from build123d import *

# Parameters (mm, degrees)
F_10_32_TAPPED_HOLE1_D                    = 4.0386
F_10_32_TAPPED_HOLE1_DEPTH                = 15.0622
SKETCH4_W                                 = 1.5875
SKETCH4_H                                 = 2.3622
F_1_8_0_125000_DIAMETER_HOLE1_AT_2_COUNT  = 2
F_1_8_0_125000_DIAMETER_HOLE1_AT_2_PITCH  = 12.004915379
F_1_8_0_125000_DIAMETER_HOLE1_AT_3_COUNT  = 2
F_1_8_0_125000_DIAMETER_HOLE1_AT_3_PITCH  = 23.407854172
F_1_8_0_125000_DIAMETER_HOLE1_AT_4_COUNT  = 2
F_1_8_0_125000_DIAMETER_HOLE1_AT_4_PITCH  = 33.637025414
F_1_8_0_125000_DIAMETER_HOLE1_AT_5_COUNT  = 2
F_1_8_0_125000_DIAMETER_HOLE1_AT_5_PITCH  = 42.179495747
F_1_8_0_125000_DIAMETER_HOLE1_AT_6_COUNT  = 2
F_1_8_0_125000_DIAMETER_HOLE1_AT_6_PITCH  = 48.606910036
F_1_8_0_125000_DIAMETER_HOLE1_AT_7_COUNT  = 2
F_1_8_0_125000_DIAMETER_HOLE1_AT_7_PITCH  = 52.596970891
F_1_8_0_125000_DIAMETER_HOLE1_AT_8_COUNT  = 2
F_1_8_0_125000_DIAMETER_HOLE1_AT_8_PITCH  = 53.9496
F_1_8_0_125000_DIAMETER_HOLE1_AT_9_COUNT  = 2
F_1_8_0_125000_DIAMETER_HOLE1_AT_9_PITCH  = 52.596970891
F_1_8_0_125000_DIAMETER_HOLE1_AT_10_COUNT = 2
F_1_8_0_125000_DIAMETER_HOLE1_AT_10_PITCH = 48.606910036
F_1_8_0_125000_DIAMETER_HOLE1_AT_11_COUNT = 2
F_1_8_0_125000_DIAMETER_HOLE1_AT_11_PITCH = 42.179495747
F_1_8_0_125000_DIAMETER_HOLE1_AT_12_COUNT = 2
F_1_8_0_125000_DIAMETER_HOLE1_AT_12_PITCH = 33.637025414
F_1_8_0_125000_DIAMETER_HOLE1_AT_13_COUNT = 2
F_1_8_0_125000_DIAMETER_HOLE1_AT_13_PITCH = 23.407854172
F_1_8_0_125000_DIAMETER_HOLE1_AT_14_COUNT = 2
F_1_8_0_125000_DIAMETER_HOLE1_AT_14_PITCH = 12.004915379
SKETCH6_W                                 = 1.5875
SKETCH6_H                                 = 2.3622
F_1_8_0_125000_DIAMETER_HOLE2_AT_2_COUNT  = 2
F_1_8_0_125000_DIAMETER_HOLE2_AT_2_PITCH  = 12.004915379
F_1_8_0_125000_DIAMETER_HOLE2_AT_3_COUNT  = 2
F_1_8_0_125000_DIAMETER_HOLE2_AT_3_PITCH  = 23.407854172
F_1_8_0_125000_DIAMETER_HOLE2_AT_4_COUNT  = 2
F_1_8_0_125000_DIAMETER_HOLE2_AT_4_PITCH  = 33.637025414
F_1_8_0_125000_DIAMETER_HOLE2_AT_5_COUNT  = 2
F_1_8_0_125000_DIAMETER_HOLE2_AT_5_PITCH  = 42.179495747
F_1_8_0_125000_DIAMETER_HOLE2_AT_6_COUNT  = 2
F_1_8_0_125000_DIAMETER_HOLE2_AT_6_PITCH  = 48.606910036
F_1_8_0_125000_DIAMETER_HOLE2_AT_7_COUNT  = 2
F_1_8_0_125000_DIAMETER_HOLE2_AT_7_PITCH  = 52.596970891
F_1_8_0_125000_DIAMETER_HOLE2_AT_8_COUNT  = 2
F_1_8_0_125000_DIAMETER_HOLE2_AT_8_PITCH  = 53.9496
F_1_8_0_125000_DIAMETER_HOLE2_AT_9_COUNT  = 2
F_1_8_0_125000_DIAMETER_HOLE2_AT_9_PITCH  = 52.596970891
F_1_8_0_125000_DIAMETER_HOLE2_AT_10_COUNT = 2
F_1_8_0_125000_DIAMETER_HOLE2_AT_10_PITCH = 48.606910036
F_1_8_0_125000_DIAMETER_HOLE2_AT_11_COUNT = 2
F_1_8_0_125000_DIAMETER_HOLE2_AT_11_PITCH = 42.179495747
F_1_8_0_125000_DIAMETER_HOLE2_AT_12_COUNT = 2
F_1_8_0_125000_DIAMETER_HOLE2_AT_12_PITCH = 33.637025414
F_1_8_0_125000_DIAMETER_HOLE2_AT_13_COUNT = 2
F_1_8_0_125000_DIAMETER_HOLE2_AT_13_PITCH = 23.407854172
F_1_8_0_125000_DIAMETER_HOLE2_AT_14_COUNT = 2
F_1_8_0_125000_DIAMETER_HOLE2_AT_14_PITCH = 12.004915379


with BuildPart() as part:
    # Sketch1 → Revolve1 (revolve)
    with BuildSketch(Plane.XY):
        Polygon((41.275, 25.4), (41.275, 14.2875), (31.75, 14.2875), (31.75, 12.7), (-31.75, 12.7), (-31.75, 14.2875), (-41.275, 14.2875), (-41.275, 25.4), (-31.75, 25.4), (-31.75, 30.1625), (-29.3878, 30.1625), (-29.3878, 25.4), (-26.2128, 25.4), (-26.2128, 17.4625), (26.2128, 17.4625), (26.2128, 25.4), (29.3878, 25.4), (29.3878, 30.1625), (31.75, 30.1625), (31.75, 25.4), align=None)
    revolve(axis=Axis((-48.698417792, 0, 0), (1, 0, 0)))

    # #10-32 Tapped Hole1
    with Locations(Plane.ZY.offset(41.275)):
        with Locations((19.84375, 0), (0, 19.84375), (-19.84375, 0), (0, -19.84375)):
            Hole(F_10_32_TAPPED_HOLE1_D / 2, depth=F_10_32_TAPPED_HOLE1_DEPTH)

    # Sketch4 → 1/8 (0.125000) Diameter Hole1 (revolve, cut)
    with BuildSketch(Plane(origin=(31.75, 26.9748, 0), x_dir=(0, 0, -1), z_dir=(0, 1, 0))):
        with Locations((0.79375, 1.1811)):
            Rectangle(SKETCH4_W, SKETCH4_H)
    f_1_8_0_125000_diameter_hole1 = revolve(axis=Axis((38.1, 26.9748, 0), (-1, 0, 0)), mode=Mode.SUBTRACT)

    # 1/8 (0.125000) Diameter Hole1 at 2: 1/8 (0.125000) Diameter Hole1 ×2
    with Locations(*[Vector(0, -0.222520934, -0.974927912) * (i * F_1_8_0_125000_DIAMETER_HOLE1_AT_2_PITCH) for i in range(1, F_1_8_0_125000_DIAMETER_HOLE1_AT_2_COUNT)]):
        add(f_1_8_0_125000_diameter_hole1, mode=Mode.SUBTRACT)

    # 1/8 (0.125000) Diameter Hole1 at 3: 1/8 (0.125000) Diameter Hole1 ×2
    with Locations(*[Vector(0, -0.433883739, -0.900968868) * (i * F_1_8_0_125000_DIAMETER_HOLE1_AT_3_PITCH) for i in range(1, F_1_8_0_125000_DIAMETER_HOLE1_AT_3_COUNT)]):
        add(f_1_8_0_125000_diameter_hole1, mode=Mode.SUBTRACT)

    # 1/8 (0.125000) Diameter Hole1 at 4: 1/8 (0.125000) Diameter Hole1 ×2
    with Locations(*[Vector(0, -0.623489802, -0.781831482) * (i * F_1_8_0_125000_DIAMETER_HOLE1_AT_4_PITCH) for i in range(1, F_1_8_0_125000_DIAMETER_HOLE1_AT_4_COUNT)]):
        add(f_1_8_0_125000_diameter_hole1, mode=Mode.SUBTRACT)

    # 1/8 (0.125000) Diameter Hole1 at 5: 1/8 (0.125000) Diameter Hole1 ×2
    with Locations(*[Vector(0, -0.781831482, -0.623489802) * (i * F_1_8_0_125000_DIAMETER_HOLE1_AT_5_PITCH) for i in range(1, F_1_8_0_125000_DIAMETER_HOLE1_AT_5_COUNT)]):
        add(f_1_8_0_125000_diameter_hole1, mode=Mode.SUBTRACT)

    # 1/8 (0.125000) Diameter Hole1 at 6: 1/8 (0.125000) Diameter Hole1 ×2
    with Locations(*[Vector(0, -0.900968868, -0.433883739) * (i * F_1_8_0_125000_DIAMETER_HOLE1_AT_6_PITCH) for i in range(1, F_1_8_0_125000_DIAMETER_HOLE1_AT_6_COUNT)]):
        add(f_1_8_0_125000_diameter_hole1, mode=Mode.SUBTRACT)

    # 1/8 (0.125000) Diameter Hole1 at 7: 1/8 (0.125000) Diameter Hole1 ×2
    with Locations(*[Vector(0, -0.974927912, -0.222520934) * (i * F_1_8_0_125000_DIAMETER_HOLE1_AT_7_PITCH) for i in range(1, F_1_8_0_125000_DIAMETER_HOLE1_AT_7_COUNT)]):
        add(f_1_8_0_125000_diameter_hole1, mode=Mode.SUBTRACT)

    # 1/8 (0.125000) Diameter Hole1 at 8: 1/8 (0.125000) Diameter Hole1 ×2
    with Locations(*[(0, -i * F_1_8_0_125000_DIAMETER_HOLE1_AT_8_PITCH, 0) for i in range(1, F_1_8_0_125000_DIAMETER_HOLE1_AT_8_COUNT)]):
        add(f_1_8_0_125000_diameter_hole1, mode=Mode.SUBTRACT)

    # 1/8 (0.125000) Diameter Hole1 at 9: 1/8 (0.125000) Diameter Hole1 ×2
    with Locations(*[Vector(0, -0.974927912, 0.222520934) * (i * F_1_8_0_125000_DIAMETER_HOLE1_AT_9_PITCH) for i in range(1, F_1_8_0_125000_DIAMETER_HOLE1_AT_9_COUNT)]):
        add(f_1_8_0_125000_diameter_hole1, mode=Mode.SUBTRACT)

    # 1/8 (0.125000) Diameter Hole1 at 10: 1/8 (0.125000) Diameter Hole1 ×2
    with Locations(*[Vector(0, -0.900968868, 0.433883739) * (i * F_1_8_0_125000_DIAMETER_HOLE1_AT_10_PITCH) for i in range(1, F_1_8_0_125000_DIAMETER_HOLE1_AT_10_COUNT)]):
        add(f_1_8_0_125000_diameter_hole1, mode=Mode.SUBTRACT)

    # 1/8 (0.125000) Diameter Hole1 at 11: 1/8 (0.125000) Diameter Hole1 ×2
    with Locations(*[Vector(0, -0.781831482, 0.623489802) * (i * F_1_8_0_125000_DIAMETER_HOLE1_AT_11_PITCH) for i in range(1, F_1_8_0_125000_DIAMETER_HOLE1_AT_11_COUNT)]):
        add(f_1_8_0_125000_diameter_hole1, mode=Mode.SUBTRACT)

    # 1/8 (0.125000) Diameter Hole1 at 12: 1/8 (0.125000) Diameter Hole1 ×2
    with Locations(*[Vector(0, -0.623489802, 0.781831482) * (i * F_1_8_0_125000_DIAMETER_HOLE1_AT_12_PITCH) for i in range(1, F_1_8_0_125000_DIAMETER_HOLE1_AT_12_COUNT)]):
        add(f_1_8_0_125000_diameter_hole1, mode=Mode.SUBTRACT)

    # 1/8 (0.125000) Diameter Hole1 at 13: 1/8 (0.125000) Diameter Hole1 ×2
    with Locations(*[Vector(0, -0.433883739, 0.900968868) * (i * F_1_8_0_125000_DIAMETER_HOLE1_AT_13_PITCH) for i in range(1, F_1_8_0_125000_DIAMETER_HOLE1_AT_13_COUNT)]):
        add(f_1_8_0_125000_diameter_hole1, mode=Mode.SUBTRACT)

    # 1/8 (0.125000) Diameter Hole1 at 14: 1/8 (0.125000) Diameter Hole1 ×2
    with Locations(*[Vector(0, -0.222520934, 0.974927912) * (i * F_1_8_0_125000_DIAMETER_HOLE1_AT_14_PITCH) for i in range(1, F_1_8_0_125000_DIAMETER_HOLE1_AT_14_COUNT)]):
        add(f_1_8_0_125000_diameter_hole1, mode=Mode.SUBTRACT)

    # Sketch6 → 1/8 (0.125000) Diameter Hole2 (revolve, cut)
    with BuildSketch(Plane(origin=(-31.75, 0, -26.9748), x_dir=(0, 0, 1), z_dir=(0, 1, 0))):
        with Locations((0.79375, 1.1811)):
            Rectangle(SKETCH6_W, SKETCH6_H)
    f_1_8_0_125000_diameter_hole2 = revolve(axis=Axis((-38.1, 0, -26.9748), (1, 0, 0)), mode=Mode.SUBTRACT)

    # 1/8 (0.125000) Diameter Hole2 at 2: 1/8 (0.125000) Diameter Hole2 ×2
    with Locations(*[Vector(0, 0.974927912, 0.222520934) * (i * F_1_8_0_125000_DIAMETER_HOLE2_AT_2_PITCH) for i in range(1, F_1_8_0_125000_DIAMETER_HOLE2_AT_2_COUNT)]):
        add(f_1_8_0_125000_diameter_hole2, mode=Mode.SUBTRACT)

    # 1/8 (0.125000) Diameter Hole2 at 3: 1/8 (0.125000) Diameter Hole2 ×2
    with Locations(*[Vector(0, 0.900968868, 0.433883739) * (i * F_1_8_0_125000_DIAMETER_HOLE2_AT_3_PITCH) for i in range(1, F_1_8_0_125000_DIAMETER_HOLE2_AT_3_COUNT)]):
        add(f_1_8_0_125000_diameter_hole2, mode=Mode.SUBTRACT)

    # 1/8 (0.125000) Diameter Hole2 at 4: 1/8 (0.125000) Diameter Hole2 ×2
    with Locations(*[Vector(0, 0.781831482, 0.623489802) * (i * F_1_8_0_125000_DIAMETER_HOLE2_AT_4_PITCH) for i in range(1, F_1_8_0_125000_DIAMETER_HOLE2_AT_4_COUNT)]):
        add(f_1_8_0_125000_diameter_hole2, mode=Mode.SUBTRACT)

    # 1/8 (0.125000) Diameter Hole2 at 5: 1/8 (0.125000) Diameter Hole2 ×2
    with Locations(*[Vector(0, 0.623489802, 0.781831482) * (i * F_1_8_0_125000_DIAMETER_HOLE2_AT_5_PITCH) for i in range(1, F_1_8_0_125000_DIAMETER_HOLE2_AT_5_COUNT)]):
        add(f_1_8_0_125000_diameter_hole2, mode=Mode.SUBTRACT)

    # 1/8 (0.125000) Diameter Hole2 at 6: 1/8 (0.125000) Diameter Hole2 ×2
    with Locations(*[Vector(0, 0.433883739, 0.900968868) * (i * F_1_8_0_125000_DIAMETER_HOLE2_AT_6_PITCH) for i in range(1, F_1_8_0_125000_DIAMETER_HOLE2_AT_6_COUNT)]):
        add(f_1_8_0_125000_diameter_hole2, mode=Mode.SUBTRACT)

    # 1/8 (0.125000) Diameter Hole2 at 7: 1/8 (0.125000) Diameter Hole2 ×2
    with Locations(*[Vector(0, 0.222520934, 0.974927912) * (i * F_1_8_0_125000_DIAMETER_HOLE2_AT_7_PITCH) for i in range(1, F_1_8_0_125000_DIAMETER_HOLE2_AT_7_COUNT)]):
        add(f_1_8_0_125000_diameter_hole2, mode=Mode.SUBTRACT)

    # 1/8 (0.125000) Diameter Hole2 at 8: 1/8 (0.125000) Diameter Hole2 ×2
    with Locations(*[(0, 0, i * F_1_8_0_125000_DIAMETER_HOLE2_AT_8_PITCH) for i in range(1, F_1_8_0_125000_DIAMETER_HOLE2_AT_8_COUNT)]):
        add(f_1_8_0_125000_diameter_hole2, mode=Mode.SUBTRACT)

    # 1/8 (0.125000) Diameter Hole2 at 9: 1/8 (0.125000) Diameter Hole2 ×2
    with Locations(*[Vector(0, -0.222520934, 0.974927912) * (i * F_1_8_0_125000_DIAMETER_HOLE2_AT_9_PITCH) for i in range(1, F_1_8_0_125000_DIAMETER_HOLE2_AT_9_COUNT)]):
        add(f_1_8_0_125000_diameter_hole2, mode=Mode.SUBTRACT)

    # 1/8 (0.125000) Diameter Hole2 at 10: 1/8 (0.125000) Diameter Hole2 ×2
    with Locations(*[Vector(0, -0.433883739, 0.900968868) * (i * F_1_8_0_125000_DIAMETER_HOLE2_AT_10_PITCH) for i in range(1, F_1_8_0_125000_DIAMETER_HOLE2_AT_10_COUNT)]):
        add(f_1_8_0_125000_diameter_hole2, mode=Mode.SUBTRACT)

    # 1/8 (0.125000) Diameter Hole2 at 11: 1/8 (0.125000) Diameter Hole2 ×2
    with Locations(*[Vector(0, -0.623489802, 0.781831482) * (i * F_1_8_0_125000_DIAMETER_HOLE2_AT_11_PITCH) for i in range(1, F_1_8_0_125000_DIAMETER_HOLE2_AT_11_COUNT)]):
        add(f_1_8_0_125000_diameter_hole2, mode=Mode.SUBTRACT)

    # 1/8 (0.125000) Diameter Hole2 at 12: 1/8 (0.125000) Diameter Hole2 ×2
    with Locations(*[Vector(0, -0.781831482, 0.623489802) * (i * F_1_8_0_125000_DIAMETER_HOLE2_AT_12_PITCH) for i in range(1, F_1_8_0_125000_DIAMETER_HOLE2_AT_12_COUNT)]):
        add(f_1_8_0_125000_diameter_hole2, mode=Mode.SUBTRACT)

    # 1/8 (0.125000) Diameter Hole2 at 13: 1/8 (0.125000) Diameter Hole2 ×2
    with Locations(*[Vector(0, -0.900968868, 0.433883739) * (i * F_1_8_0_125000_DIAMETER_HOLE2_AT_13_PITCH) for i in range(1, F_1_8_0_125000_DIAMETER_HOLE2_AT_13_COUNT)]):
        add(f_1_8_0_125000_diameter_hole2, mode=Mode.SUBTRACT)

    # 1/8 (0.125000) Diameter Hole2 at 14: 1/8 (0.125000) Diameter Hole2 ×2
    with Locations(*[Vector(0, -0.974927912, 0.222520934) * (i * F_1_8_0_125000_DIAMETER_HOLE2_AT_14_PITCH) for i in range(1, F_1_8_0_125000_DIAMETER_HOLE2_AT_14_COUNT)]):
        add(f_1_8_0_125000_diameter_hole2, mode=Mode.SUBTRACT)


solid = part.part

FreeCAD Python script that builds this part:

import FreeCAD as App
import Part
import Sketcher
Q = App.Units.Quantity


def add_polygon(sketch, points):
    """Adds a closed chain of lines whose ends are joined by coincident constraints."""
    first, n = sketch.GeometryCount, len(points)
    for a, b in zip(points, points[1:] + points[:1]):
        sketch.addGeometry(Part.LineSegment(App.Vector(*a, 0), App.Vector(*b, 0)), False)
    for i in range(n):
        sketch.addConstraint(Sketcher.Constraint("Coincident", first + i, 2, first + (i + 1) % n, 1))

doc = App.newDocument("Part")
body = doc.addObject("PartDesign::Body", "Body")

# Sketch on XY plane
sketch1 = body.newObject("Sketcher::SketchObject", "Sketch")
sketch1.AttachmentSupport = (doc.getObject("XY_Plane"), [""])
sketch1.MapMode = "FlatFace"
add_polygon(sketch1, [(41.3, 14.3), (41.3, 25.4), (31.8, 25.4), (31.8, 30.2), (29.4, 30.2), (29.4, 25.4), (26.2, 25.4), (26.2, 17.5), (-26.2, 17.5), (-26.2, 25.4), (-29.4, 25.4), (-29.4, 30.2), (-31.8, 30.2), (-31.8, 25.4), (-41.3, 25.4), (-41.3, 14.3), (-31.8, 14.3), (-31.8, 12.7), (31.8, 12.7), (31.8, 14.3)])  # lines 0-19
sketch1.addConstraint([
    Sketcher.Constraint("Vertical", 0),
    Sketcher.Constraint("Horizontal", 1),
    Sketcher.Constraint("Vertical", 2),
    Sketcher.Constraint("Horizontal", 3),
    Sketcher.Constraint("Vertical", 4),
    Sketcher.Constraint("Horizontal", 5),
    Sketcher.Constraint("Vertical", 6),
    Sketcher.Constraint("Horizontal", 7),
    Sketcher.Constraint("Vertical", 8),
    Sketcher.Constraint("Horizontal", 9),
    Sketcher.Constraint("Vertical", 10),
    Sketcher.Constraint("Horizontal", 11),
    Sketcher.Constraint("Vertical", 12),
    Sketcher.Constraint("Horizontal", 13),
    Sketcher.Constraint("Vertical", 14),
    Sketcher.Constraint("Horizontal", 15),
    Sketcher.Constraint("Vertical", 16),
    Sketcher.Constraint("Horizontal", 17),
    Sketcher.Constraint("Vertical", 18),
    Sketcher.Constraint("Horizontal", 19),
    Sketcher.Constraint("Symmetric", 5, 2, 8, 2, -2),
    Sketcher.Constraint("Symmetric", 3, 2, 10, 2, -2),
    Sketcher.Constraint("Symmetric", 1, 2, 12, 2, -2),
    Sketcher.Constraint("Symmetric", 15, 2, 18, 2, -2),
    Sketcher.Constraint("Horizontal", 1, 2, 4, 2),
    Sketcher.Constraint("Vertical", 12, 2, 15, 2),
    Sketcher.Constraint("Equal", 1, 13),
    Sketcher.Constraint("DistanceX", 17, 1, 17, 2, Q("2.5 in")),
    Sketcher.Constraint("DistanceY", -1, 1, 0, 2, Q("1 in")),
    Sketcher.Constraint("DistanceY", -1, 1, 16, 2, Q("0.5 in")),
    Sketcher.Constraint("DistanceY", 6, 2, 3, 2, Q("0.5 in")),
    Sketcher.Constraint("DistanceX", 1, 2, 1, 1, Q("0.375 in")),
    Sketcher.Constraint("DistanceX", 3, 2, 3, 1, Q("0.093 in")),
    Sketcher.Constraint("DistanceX", 5, 2, 5, 1, Q("0.125 in")),
    Sketcher.Constraint("DistanceY", 0, 1, 0, 2, Q("0.4375 in")),
    Sketcher.Constraint("DistanceY", 2, 1, 2, 2, Q("0.1875 in")),
])
revolution = body.newObject("PartDesign::Revolution", "Revolution")
revolution.Profile = sketch1
revolution.ReferenceAxis = (sketch1, ["H_Axis"])
revolution.Angle = 360

# Sketch on YZ plane
sketch2 = body.newObject("Sketcher::SketchObject", "Sketch001")
sketch2.AttachmentSupport = (doc.getObject("YZ_Plane"), [""])
sketch2.MapMode = "FlatFace"
sketch2.AttachmentOffset = App.Placement(App.Vector(0, 0, -1.625 * 25.4), App.Rotation())
sketch2.addGeometry([
    Part.Circle(App.Vector(0, 19.8, 0), App.Vector(0, 0, 1), 2),
    Part.Circle(App.Vector(19.8, 0, 0), App.Vector(0, 0, 1), 2),
    Part.Circle(App.Vector(0, -19.8, 0), App.Vector(0, 0, 1), 2),
    Part.Circle(App.Vector(-19.8, 0, 0), App.Vector(0, 0, 1), 2),
], False)
sketch2.addConstraint([
    Sketcher.Constraint("Equal", 0, 1),
    Sketcher.Constraint("Equal", 1, 2),
    Sketcher.Constraint("Equal", 2, 3),
    Sketcher.Constraint("Symmetric", 0, 3, 2, 3, -1, 1),
    Sketcher.Constraint("Symmetric", 1, 3, 3, 3, -1, 1),
    Sketcher.Constraint("PointOnObject", 0, 3, -2),
    Sketcher.Constraint("PointOnObject", 1, 3, -1),
    Sketcher.Constraint("Diameter", 0, Q("0.159 in")),
    Sketcher.Constraint("DistanceY", -1, 1, 0, 3, Q("0.78125 in")),
    Sketcher.Constraint("DistanceX", -1, 1, 1, 3, Q("0.78125 in")),
])
doc.recompute()
hole = body.newObject("PartDesign::Hole", "Hole")
hole.Profile = sketch2
hole.ThreadType = "None"
hole.Diameter = Q("0.159 in")
hole.DepthType = "Dimension"
hole.Depth = Q("0.593 in")
hole.DrillPoint = "Flat"
hole.Reversed = True

# Sketch on XZ plane
sketch3 = body.newObject("Sketcher::SketchObject", "Sketch002")
sketch3.AttachmentSupport = (doc.getObject("XZ_Plane"), [""])
sketch3.MapMode = "FlatFace"
sketch3.AttachmentOffset = App.Placement(App.Vector(0, 0, -1.062 * 25.4), App.Rotation())
add_polygon(sketch3, [(29.4, 0), (31.8, 0), (31.8, -1.6), (29.4, -1.6)])  # lines 0-3
sketch3.addConstraint([
    Sketcher.Constraint("Horizontal", 0),
    Sketcher.Constraint("Vertical", 1),
    Sketcher.Constraint("Horizontal", 2),
    Sketcher.Constraint("Vertical", 3),
    Sketcher.Constraint("PointOnObject", 0, 2, -1),
    Sketcher.Constraint("DistanceX", 0, 1, 0, 2, Q("0.093 in")),
    Sketcher.Constraint("DistanceY", 1, 2, 1, 1, Q("0.0625 in")),
    Sketcher.Constraint("DistanceX", -1, 1, 0, 2, Q("1.25 in")),
])
groove = body.newObject("PartDesign::Groove", "Groove")
groove.Profile = sketch3
groove.ReferenceAxis = (sketch3, ["H_Axis"])
groove.Angle = 360
doc.recompute()

datumline = body.newObject("PartDesign::Line", "DatumLine")
datumline.Placement = App.Placement(App.Vector(0, 0, 0), App.Rotation(App.Vector(0, 0, 1), App.Vector(0, -0.222520934, -0.974927912)))
linearpattern = body.newObject("PartDesign::LinearPattern", "LinearPattern")
linearpattern.Originals = [groove]
linearpattern.Direction = (datumline, [""])
linearpattern.Mode = "offset"
linearpattern.Offset = 12.004915
linearpattern.Occurrences = 2
body.Tip = linearpattern
doc.recompute()

datumline2 = body.newObject("PartDesign::Line", "DatumLine001")
datumline2.Placement = App.Placement(App.Vector(0, 0, 0), App.Rotation(App.Vector(0, 0, 1), App.Vector(0, -0.433883739, -0.900968868)))
linearpattern2 = body.newObject("PartDesign::LinearPattern", "LinearPattern001")
linearpattern2.Originals = [groove]
linearpattern2.Direction = (datumline2, [""])
linearpattern2.Mode = "offset"
linearpattern2.Offset = 23.407854
linearpattern2.Occurrences = 2
body.Tip = linearpattern2
doc.recompute()

datumline3 = body.newObject("PartDesign::Line", "DatumLine002")
datumline3.Placement = App.Placement(App.Vector(0, 0, 0), App.Rotation(App.Vector(0, 0, 1), App.Vector(0, -0.623489802, -0.781831482)))
linearpattern3 = body.newObject("PartDesign::LinearPattern", "LinearPattern002")
linearpattern3.Originals = [groove]
linearpattern3.Direction = (datumline3, [""])
linearpattern3.Mode = "offset"
linearpattern3.Offset = 33.637025
linearpattern3.Occurrences = 2
body.Tip = linearpattern3
doc.recompute()

datumline4 = body.newObject("PartDesign::Line", "DatumLine003")
datumline4.Placement = App.Placement(App.Vector(0, 0, 0), App.Rotation(App.Vector(0, 0, 1), App.Vector(0, -0.781831482, -0.623489802)))
linearpattern4 = body.newObject("PartDesign::LinearPattern", "LinearPattern003")
linearpattern4.Originals = [groove]
linearpattern4.Direction = (datumline4, [""])
linearpattern4.Mode = "offset"
linearpattern4.Offset = 42.179496
linearpattern4.Occurrences = 2
body.Tip = linearpattern4
doc.recompute()

datumline5 = body.newObject("PartDesign::Line", "DatumLine004")
datumline5.Placement = App.Placement(App.Vector(0, 0, 0), App.Rotation(App.Vector(0, 0, 1), App.Vector(0, -0.900968868, -0.433883739)))
linearpattern5 = body.newObject("PartDesign::LinearPattern", "LinearPattern004")
linearpattern5.Originals = [groove]
linearpattern5.Direction = (datumline5, [""])
linearpattern5.Mode = "offset"
linearpattern5.Offset = 48.60691
linearpattern5.Occurrences = 2
body.Tip = linearpattern5
doc.recompute()

datumline6 = body.newObject("PartDesign::Line", "DatumLine005")
datumline6.Placement = App.Placement(App.Vector(0, 0, 0), App.Rotation(App.Vector(0, 0, 1), App.Vector(0, -0.974927912, -0.222520934)))
linearpattern6 = body.newObject("PartDesign::LinearPattern", "LinearPattern005")
linearpattern6.Originals = [groove]
linearpattern6.Direction = (datumline6, [""])
linearpattern6.Mode = "offset"
linearpattern6.Offset = 52.596971
linearpattern6.Occurrences = 2
body.Tip = linearpattern6
doc.recompute()

linearpattern7 = body.newObject("PartDesign::LinearPattern", "LinearPattern006")
linearpattern7.Originals = [groove]
linearpattern7.Direction = (doc.getObject("Y_Axis"), [""])
linearpattern7.Mode = "offset"
linearpattern7.Offset = Q("2.124 in")
linearpattern7.Occurrences = 2
linearpattern7.Reversed = True
body.Tip = linearpattern7
doc.recompute()

datumline7 = body.newObject("PartDesign::Line", "DatumLine006")
datumline7.Placement = App.Placement(App.Vector(0, 0, 0), App.Rotation(App.Vector(0, 0, 1), App.Vector(0, -0.974927912, 0.222520934)))
linearpattern8 = body.newObject("PartDesign::LinearPattern", "LinearPattern007")
linearpattern8.Originals = [groove]
linearpattern8.Direction = (datumline7, [""])
linearpattern8.Mode = "offset"
linearpattern8.Offset = 52.596971
linearpattern8.Occurrences = 2
body.Tip = linearpattern8
doc.recompute()

datumline8 = body.newObject("PartDesign::Line", "DatumLine007")
datumline8.Placement = App.Placement(App.Vector(0, 0, 0), App.Rotation(App.Vector(0, 0, 1), App.Vector(0, -0.900968868, 0.433883739)))
linearpattern9 = body.newObject("PartDesign::LinearPattern", "LinearPattern008")
linearpattern9.Originals = [groove]
linearpattern9.Direction = (datumline8, [""])
linearpattern9.Mode = "offset"
linearpattern9.Offset = 48.60691
linearpattern9.Occurrences = 2
body.Tip = linearpattern9
doc.recompute()

datumline9 = body.newObject("PartDesign::Line", "DatumLine008")
datumline9.Placement = App.Placement(App.Vector(0, 0, 0), App.Rotation(App.Vector(0, 0, 1), App.Vector(0, -0.781831482, 0.623489802)))
linearpattern10 = body.newObject("PartDesign::LinearPattern", "LinearPattern009")
linearpattern10.Originals = [groove]
linearpattern10.Direction = (datumline9, [""])
linearpattern10.Mode = "offset"
linearpattern10.Offset = 42.179496
linearpattern10.Occurrences = 2
body.Tip = linearpattern10
doc.recompute()

datumline10 = body.newObject("PartDesign::Line", "DatumLine009")
datumline10.Placement = App.Placement(App.Vector(0, 0, 0), App.Rotation(App.Vector(0, 0, 1), App.Vector(0, -0.623489802, 0.781831482)))
linearpattern11 = body.newObject("PartDesign::LinearPattern", "LinearPattern010")
linearpattern11.Originals = [groove]
linearpattern11.Direction = (datumline10, [""])
linearpattern11.Mode = "offset"
linearpattern11.Offset = 33.637025
linearpattern11.Occurrences = 2
body.Tip = linearpattern11
doc.recompute()

datumline11 = body.newObject("PartDesign::Line", "DatumLine010")
datumline11.Placement = App.Placement(App.Vector(0, 0, 0), App.Rotation(App.Vector(0, 0, 1), App.Vector(0, -0.433883739, 0.900968868)))
linearpattern12 = body.newObject("PartDesign::LinearPattern", "LinearPattern011")
linearpattern12.Originals = [groove]
linearpattern12.Direction = (datumline11, [""])
linearpattern12.Mode = "offset"
linearpattern12.Offset = 23.407854
linearpattern12.Occurrences = 2
body.Tip = linearpattern12
doc.recompute()

datumline12 = body.newObject("PartDesign::Line", "DatumLine011")
datumline12.Placement = App.Placement(App.Vector(0, 0, 0), App.Rotation(App.Vector(0, 0, 1), App.Vector(0, -0.222520934, 0.974927912)))
linearpattern13 = body.newObject("PartDesign::LinearPattern", "LinearPattern012")
linearpattern13.Originals = [groove]
linearpattern13.Direction = (datumline12, [""])
linearpattern13.Mode = "offset"
linearpattern13.Offset = 12.004915
linearpattern13.Occurrences = 2
body.Tip = linearpattern13

# Sketch on XZ plane
sketch4 = body.newObject("Sketcher::SketchObject", "Sketch003")
sketch4.AttachmentSupport = (doc.getObject("XZ_Plane"), [""])
sketch4.MapMode = "FlatFace"
add_polygon(sketch4, [(-29.4, -27), (-31.8, -27), (-31.8, -25.4), (-29.4, -25.4)])  # lines 0-3
sketch4.addGeometry(Part.LineSegment(App.Vector(-31.8, -27, 0), App.Vector(-29.4, -27, 0)), True)  # axis
sketch4.addConstraint([
    Sketcher.Constraint("Horizontal", 0),
    Sketcher.Constraint("Vertical", 1),
    Sketcher.Constraint("Horizontal", 2),
    Sketcher.Constraint("Vertical", 3),
    Sketcher.Constraint("Horizontal", 4),
    Sketcher.Constraint("Coincident", 4, 1, 0, 2),
    Sketcher.Constraint("Vertical", 2, 2, 4, 2),
    Sketcher.Constraint("DistanceX", 0, 2, 0, 1, Q("0.093 in")),
    Sketcher.Constraint("DistanceY", 1, 1, 1, 2, Q("0.0625 in")),
    Sketcher.Constraint("DistanceX", 0, 2, -1, 1, Q("1.25 in")),
    Sketcher.Constraint("DistanceY", 0, 2, -1, 1, Q("1.062 in")),
])
groove2 = body.newObject("PartDesign::Groove", "Groove001")
groove2.Profile = sketch4
groove2.ReferenceAxis = (sketch4, ["Axis0"])
groove2.Angle = 360
doc.recompute()

datumline13 = body.newObject("PartDesign::Line", "DatumLine012")
datumline13.Placement = App.Placement(App.Vector(0, 0, 0), App.Rotation(App.Vector(0, 0, 1), App.Vector(0, 0.974927912, 0.222520934)))
linearpattern14 = body.newObject("PartDesign::LinearPattern", "LinearPattern013")
linearpattern14.Originals = [groove2]
linearpattern14.Direction = (datumline13, [""])
linearpattern14.Mode = "offset"
linearpattern14.Offset = 12.004915
linearpattern14.Occurrences = 2
body.Tip = linearpattern14
doc.recompute()

datumline14 = body.newObject("PartDesign::Line", "DatumLine013")
datumline14.Placement = App.Placement(App.Vector(0, 0, 0), App.Rotation(App.Vector(0, 0, 1), App.Vector(0, 0.900968868, 0.433883739)))
linearpattern15 = body.newObject("PartDesign::LinearPattern", "LinearPattern014")
linearpattern15.Originals = [groove2]
linearpattern15.Direction = (datumline14, [""])
linearpattern15.Mode = "offset"
linearpattern15.Offset = 23.407854
linearpattern15.Occurrences = 2
body.Tip = linearpattern15
doc.recompute()

datumline15 = body.newObject("PartDesign::Line", "DatumLine014")
datumline15.Placement = App.Placement(App.Vector(0, 0, 0), App.Rotation(App.Vector(0, 0, 1), App.Vector(0, 0.781831482, 0.623489802)))
linearpattern16 = body.newObject("PartDesign::LinearPattern", "LinearPattern015")
linearpattern16.Originals = [groove2]
linearpattern16.Direction = (datumline15, [""])
linearpattern16.Mode = "offset"
linearpattern16.Offset = 33.637025
linearpattern16.Occurrences = 2
body.Tip = linearpattern16
doc.recompute()

datumline16 = body.newObject("PartDesign::Line", "DatumLine015")
datumline16.Placement = App.Placement(App.Vector(0, 0, 0), App.Rotation(App.Vector(0, 0, 1), App.Vector(0, 0.623489802, 0.781831482)))
linearpattern17 = body.newObject("PartDesign::LinearPattern", "LinearPattern016")
linearpattern17.Originals = [groove2]
linearpattern17.Direction = (datumline16, [""])
linearpattern17.Mode = "offset"
linearpattern17.Offset = 42.179496
linearpattern17.Occurrences = 2
body.Tip = linearpattern17
doc.recompute()

datumline17 = body.newObject("PartDesign::Line", "DatumLine016")
datumline17.Placement = App.Placement(App.Vector(0, 0, 0), App.Rotation(App.Vector(0, 0, 1), App.Vector(0, 0.433883739, 0.900968868)))
linearpattern18 = body.newObject("PartDesign::LinearPattern", "LinearPattern017")
linearpattern18.Originals = [groove2]
linearpattern18.Direction = (datumline17, [""])
linearpattern18.Mode = "offset"
linearpattern18.Offset = 48.60691
linearpattern18.Occurrences = 2
body.Tip = linearpattern18
doc.recompute()

datumline18 = body.newObject("PartDesign::Line", "DatumLine017")
datumline18.Placement = App.Placement(App.Vector(0, 0, 0), App.Rotation(App.Vector(0, 0, 1), App.Vector(0, 0.222520934, 0.974927912)))
linearpattern19 = body.newObject("PartDesign::LinearPattern", "LinearPattern018")
linearpattern19.Originals = [groove2]
linearpattern19.Direction = (datumline18, [""])
linearpattern19.Mode = "offset"
linearpattern19.Offset = 52.596971
linearpattern19.Occurrences = 2
body.Tip = linearpattern19
doc.recompute()

linearpattern20 = body.newObject("PartDesign::LinearPattern", "LinearPattern019")
linearpattern20.Originals = [groove2]
linearpattern20.Direction = (doc.getObject("Z_Axis"), [""])
linearpattern20.Mode = "offset"
linearpattern20.Offset = Q("2.124 in")
linearpattern20.Occurrences = 2
body.Tip = linearpattern20
doc.recompute()

datumline19 = body.newObject("PartDesign::Line", "DatumLine018")
datumline19.Placement = App.Placement(App.Vector(0, 0, 0), App.Rotation(App.Vector(0, 0, 1), App.Vector(0, -0.222520934, 0.974927912)))
linearpattern21 = body.newObject("PartDesign::LinearPattern", "LinearPattern020")
linearpattern21.Originals = [groove2]
linearpattern21.Direction = (datumline19, [""])
linearpattern21.Mode = "offset"
linearpattern21.Offset = 52.596971
linearpattern21.Occurrences = 2
body.Tip = linearpattern21
doc.recompute()

datumline20 = body.newObject("PartDesign::Line", "DatumLine019")
datumline20.Placement = App.Placement(App.Vector(0, 0, 0), App.Rotation(App.Vector(0, 0, 1), App.Vector(0, -0.433883739, 0.900968868)))
linearpattern22 = body.newObject("PartDesign::LinearPattern", "LinearPattern021")
linearpattern22.Originals = [groove2]
linearpattern22.Direction = (datumline20, [""])
linearpattern22.Mode = "offset"
linearpattern22.Offset = 48.60691
linearpattern22.Occurrences = 2
body.Tip = linearpattern22
doc.recompute()

datumline21 = body.newObject("PartDesign::Line", "DatumLine020")
datumline21.Placement = App.Placement(App.Vector(0, 0, 0), App.Rotation(App.Vector(0, 0, 1), App.Vector(0, -0.623489802, 0.781831482)))
linearpattern23 = body.newObject("PartDesign::LinearPattern", "LinearPattern022")
linearpattern23.Originals = [groove2]
linearpattern23.Direction = (datumline21, [""])
linearpattern23.Mode = "offset"
linearpattern23.Offset = 42.179496
linearpattern23.Occurrences = 2
body.Tip = linearpattern23
doc.recompute()

datumline22 = body.newObject("PartDesign::Line", "DatumLine021")
datumline22.Placement = App.Placement(App.Vector(0, 0, 0), App.Rotation(App.Vector(0, 0, 1), App.Vector(0, -0.781831482, 0.623489802)))
linearpattern24 = body.newObject("PartDesign::LinearPattern", "LinearPattern023")
linearpattern24.Originals = [groove2]
linearpattern24.Direction = (datumline22, [""])
linearpattern24.Mode = "offset"
linearpattern24.Offset = 33.637025
linearpattern24.Occurrences = 2
body.Tip = linearpattern24
doc.recompute()

datumline23 = body.newObject("PartDesign::Line", "DatumLine022")
datumline23.Placement = App.Placement(App.Vector(0, 0, 0), App.Rotation(App.Vector(0, 0, 1), App.Vector(0, -0.900968868, 0.433883739)))
linearpattern25 = body.newObject("PartDesign::LinearPattern", "LinearPattern024")
linearpattern25.Originals = [groove2]
linearpattern25.Direction = (datumline23, [""])
linearpattern25.Mode = "offset"
linearpattern25.Offset = 23.407854
linearpattern25.Occurrences = 2
body.Tip = linearpattern25
doc.recompute()

datumline24 = body.newObject("PartDesign::Line", "DatumLine023")
datumline24.Placement = App.Placement(App.Vector(0, 0, 0), App.Rotation(App.Vector(0, 0, 1), App.Vector(0, -0.974927912, 0.222520934)))
linearpattern26 = body.newObject("PartDesign::LinearPattern", "LinearPattern025")
linearpattern26.Originals = [groove2]
linearpattern26.Direction = (datumline24, [""])
linearpattern26.Mode = "offset"
linearpattern26.Offset = 12.004915
linearpattern26.Occurrences = 2
body.Tip = linearpattern26

doc.recompute()
